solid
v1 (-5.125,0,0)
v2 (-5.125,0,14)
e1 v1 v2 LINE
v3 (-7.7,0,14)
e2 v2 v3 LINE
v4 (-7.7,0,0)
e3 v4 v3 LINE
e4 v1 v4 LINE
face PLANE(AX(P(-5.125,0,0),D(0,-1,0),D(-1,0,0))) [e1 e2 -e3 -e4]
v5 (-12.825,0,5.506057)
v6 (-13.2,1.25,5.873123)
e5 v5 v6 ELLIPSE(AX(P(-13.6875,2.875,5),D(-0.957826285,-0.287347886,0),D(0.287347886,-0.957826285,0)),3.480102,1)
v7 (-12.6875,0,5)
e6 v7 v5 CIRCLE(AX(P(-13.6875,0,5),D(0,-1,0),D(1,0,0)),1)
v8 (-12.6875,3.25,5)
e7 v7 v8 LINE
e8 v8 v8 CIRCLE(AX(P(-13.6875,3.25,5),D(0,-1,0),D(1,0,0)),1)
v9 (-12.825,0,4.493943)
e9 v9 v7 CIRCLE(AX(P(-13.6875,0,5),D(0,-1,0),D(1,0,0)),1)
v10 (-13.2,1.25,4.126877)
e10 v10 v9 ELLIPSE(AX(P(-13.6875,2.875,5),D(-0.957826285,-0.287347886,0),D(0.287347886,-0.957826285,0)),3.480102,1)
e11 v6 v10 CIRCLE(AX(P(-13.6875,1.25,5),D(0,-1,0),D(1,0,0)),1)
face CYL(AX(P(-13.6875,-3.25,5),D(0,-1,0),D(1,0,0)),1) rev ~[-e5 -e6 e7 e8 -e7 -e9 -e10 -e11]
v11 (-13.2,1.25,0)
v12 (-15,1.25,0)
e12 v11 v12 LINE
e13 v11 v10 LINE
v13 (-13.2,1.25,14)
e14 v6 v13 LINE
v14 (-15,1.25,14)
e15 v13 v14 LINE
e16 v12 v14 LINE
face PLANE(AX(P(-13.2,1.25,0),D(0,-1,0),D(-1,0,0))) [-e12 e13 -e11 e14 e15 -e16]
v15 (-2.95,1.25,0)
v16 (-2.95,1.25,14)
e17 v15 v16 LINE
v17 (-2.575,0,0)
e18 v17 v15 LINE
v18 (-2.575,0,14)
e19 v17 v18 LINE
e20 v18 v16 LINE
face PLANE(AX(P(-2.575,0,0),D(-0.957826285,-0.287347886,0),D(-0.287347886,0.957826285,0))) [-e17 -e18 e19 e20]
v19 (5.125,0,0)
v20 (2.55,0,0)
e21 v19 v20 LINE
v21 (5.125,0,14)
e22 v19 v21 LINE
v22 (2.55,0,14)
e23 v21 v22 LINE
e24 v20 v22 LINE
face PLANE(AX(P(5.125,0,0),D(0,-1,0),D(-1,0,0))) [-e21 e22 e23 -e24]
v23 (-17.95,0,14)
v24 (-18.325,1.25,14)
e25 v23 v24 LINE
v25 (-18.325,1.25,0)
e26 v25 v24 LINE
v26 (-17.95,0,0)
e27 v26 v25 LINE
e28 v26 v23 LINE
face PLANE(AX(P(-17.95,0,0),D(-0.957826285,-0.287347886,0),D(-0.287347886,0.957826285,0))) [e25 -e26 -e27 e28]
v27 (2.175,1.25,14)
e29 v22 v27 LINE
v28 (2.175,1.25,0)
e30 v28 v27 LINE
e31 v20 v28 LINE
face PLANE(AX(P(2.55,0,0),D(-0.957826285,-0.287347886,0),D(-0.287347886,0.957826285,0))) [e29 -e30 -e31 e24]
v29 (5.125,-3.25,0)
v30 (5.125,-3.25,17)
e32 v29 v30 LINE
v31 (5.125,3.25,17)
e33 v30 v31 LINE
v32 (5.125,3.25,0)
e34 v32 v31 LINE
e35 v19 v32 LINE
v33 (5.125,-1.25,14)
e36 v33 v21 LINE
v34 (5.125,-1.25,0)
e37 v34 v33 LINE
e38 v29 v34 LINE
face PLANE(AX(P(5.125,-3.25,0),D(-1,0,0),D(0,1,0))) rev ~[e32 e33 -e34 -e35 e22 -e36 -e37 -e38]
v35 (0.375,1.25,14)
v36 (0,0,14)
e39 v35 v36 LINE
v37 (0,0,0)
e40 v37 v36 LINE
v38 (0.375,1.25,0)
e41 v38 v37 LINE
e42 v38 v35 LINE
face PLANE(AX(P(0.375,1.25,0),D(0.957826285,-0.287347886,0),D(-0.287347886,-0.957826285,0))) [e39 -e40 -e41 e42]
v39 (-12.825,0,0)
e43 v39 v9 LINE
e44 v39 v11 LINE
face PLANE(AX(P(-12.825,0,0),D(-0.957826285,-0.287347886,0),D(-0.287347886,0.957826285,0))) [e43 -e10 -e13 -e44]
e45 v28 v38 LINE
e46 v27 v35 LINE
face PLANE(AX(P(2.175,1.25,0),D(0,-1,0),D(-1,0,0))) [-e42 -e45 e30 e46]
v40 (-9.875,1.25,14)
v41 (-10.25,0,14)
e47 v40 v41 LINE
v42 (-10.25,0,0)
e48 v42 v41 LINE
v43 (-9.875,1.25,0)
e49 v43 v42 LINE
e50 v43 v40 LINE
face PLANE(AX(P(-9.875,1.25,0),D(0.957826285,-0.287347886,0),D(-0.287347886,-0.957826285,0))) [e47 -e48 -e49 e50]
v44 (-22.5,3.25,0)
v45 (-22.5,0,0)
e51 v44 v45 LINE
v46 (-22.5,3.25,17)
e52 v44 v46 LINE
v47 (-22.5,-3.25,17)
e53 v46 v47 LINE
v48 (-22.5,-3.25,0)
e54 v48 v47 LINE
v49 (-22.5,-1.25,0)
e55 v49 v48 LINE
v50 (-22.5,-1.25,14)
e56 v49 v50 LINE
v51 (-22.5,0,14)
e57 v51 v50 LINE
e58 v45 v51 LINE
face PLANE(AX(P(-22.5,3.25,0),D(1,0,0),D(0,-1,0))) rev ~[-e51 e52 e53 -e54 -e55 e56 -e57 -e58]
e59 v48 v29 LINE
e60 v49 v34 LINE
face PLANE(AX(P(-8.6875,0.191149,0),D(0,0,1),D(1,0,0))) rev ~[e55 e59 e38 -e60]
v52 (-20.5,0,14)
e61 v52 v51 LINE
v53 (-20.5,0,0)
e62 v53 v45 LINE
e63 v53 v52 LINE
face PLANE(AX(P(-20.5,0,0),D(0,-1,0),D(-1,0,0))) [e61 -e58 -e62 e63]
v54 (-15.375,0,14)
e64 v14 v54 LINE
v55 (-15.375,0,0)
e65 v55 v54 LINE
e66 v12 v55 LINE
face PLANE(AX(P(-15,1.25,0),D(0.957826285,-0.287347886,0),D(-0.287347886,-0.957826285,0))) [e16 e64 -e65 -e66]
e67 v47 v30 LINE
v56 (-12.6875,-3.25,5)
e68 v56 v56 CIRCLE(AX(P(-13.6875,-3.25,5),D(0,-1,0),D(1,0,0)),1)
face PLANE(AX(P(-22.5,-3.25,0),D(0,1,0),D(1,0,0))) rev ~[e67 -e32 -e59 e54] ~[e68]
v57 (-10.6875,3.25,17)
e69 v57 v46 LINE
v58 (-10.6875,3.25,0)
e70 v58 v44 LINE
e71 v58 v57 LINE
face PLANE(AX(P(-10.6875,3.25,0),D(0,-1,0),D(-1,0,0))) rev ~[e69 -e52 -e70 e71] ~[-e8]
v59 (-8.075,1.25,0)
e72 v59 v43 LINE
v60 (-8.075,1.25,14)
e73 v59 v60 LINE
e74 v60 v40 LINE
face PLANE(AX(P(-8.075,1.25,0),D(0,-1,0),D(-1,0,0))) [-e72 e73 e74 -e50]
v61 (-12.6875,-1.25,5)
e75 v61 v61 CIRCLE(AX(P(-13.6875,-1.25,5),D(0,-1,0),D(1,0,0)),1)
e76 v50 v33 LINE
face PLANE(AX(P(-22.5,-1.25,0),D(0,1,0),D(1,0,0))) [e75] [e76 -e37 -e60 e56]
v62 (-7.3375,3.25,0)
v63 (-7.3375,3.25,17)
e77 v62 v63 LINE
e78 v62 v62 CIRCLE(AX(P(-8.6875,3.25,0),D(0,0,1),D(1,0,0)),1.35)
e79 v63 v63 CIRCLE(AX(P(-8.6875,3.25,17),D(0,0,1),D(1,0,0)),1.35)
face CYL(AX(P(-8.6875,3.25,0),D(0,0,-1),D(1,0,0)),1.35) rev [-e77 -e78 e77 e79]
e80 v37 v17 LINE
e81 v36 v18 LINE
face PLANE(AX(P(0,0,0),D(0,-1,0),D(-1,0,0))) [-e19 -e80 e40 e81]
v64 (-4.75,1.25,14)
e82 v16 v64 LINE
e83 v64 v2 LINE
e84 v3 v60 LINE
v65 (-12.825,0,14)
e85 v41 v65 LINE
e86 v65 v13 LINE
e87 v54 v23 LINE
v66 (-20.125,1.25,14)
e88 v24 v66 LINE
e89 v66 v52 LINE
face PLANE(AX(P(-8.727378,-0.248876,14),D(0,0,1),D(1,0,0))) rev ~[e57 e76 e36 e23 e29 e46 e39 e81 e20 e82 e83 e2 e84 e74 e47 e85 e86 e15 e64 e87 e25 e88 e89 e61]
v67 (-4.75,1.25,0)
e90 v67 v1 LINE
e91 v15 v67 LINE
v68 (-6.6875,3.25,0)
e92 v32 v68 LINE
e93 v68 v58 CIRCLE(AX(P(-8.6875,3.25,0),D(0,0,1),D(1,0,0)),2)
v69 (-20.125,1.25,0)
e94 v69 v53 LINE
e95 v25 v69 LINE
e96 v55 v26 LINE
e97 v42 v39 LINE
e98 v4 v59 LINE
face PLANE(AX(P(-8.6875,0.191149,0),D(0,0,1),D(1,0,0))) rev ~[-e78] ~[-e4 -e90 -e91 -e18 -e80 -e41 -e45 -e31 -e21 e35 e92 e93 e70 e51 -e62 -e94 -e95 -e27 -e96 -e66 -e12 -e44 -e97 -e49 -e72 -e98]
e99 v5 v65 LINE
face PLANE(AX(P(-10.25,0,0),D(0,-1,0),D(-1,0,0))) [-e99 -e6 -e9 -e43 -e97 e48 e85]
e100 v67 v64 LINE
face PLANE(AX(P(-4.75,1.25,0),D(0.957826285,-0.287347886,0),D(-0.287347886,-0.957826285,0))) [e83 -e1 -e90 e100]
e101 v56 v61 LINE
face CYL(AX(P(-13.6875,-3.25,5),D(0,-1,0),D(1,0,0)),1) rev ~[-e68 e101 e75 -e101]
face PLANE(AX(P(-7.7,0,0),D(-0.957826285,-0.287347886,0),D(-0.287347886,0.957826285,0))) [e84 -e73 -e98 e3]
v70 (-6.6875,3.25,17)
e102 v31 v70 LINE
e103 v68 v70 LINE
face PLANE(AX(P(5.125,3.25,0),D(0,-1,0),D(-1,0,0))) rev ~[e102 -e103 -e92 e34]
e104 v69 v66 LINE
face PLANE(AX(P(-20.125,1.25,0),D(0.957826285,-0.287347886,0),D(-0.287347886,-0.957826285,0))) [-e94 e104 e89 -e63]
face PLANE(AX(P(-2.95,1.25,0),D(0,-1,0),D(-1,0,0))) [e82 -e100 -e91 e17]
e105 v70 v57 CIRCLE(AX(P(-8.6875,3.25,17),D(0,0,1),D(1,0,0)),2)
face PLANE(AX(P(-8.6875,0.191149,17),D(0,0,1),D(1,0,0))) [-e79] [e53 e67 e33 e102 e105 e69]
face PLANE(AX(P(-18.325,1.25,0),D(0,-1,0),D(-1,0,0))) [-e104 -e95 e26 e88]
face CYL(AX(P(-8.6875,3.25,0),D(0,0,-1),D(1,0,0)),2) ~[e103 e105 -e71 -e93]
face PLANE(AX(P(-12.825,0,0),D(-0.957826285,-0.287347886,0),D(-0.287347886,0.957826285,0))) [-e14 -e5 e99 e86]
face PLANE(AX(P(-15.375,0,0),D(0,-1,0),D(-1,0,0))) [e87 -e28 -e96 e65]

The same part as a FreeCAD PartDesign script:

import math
import FreeCAD as App
import Part
import Sketcher
Q = App.Units.Quantity

doc = App.newDocument("Part")
body = doc.addObject("PartDesign::Body", "Body")

# Sketch on XY plane
sketch1 = doc.addObject("Sketcher::SketchObject", "Sketch")
body.addObject(sketch1)
sketch1.AttachmentSupport = (doc.XY_Plane, [""])
sketch1.MapMode = "FlatFace"
sketch1.addGeometry(Part.LineSegment(App.Vector(-20.125, 1.25, 0), App.Vector(-20.5, 0, 0)), False)
sketch1.addGeometry(Part.LineSegment(App.Vector(-20.5, 0, 0), App.Vector(-22.5, 0, 0)), False)
sketch1.addGeometry(Part.LineSegment(App.Vector(-22.5, 0, 0), App.Vector(-22.5, -1.25, 0)), False)
sketch1.addGeometry(Part.LineSegment(App.Vector(-22.5, -1.25, 0), App.Vector(5.125, -1.25, 0)), False)
sketch1.addGeometry(Part.LineSegment(App.Vector(5.125, -1.25, 0), App.Vector(5.125, 0, 0)), False)
sketch1.addGeometry(Part.LineSegment(App.Vector(5.125, 0, 0), App.Vector(2.55, 0, 0)), False)
sketch1.addGeometry(Part.LineSegment(App.Vector(2.55, 0, 0), App.Vector(2.175, 1.25, 0)), False)
sketch1.addGeometry(Part.LineSegment(App.Vector(2.175, 1.25, 0), App.Vector(0.375, 1.25, 0)), False)
sketch1.addGeometry(Part.LineSegment(App.Vector(0.375, 1.25, 0), App.Vector(0, 0, 0)), False)
sketch1.addGeometry(Part.LineSegment(App.Vector(0, 0, 0), App.Vector(-2.575, 0, 0)), False)
sketch1.addGeometry(Part.LineSegment(App.Vector(-2.575, 0, 0), App.Vector(-2.95, 1.25, 0)), False)
sketch1.addGeometry(Part.LineSegment(App.Vector(-2.95, 1.25, 0), App.Vector(-4.75, 1.25, 0)), False)
sketch1.addGeometry(Part.LineSegment(App.Vector(-4.75, 1.25, 0), App.Vector(-5.125, 0, 0)), False)
sketch1.addGeometry(Part.LineSegment(App.Vector(-5.125, 0, 0), App.Vector(-7.7, 0, 0)), False)
sketch1.addGeometry(Part.LineSegment(App.Vector(-7.7, 0, 0), App.Vector(-8.075, 1.25, 0)), False)
sketch1.addGeometry(Part.LineSegment(App.Vector(-8.075, 1.25, 0), App.Vector(-9.875, 1.25, 0)), False)
sketch1.addGeometry(Part.LineSegment(App.Vector(-9.875, 1.25, 0), App.Vector(-10.25, 0, 0)), False)
sketch1.addGeometry(Part.LineSegment(App.Vector(-10.25, 0, 0), App.Vector(-12.825, 0, 0)), False)
sketch1.addGeometry(Part.LineSegment(App.Vector(-12.825, 0, 0), App.Vector(-13.2, 1.25, 0)), False)
sketch1.addGeometry(Part.LineSegment(App.Vector(-13.2, 1.25, 0), App.Vector(-15, 1.25, 0)), False)
sketch1.addGeometry(Part.LineSegment(App.Vector(-15, 1.25, 0), App.Vector(-15.375, 0, 0)), False)
sketch1.addGeometry(Part.LineSegment(App.Vector(-15.375, 0, 0), App.Vector(-17.95, 0, 0)), False)
sketch1.addGeometry(Part.LineSegment(App.Vector(-17.95, 0, 0), App.Vector(-18.325, 1.25, 0)), False)
sketch1.addGeometry(Part.LineSegment(App.Vector(-18.325, 1.25, 0), App.Vector(-20.125, 1.25, 0)), False)
sketch1.addConstraint(Sketcher.Constraint("Coincident", 0, 2, 1, 1))
sketch1.addConstraint(Sketcher.Constraint("Coincident", 1, 2, 2, 1))
sketch1.addConstraint(Sketcher.Constraint("Coincident", 2, 2, 3, 1))
sketch1.addConstraint(Sketcher.Constraint("Coincident", 3, 2, 4, 1))
sketch1.addConstraint(Sketcher.Constraint("Coincident", 4, 2, 5, 1))
sketch1.addConstraint(Sketcher.Constraint("Coincident", 5, 2, 6, 1))
sketch1.addConstraint(Sketcher.Constraint("Coincident", 6, 2, 7, 1))
sketch1.addConstraint(Sketcher.Constraint("Coincident", 7, 2, 8, 1))
sketch1.addConstraint(Sketcher.Constraint("Coincident", 8, 2, 9, 1))
sketch1.addConstraint(Sketcher.Constraint("Coincident", 9, 2, 10, 1))
sketch1.addConstraint(Sketcher.Constraint("Coincident", 10, 2, 11, 1))
sketch1.addConstraint(Sketcher.Constraint("Coincident", 11, 2, 12, 1))
sketch1.addConstraint(Sketcher.Constraint("Coincident", 12, 2, 13, 1))
sketch1.addConstraint(Sketcher.Constraint("Coincident", 13, 2, 14, 1))
sketch1.addConstraint(Sketcher.Constraint("Coincident", 14, 2, 15, 1))
sketch1.addConstraint(Sketcher.Constraint("Coincident", 15, 2, 16, 1))
sketch1.addConstraint(Sketcher.Constraint("Coincident", 16, 2, 17, 1))
sketch1.addConstraint(Sketcher.Constraint("Coincident", 17, 2, 18, 1))
sketch1.addConstraint(Sketcher.Constraint("Coincident", 18, 2, 19, 1))
sketch1.addConstraint(Sketcher.Constraint("Coincident", 19, 2, 20, 1))
sketch1.addConstraint(Sketcher.Constraint("Coincident", 20, 2, 21, 1))
sketch1.addConstraint(Sketcher.Constraint("Coincident", 21, 2, 22, 1))
sketch1.addConstraint(Sketcher.Constraint("Coincident", 22, 2, 23, 1))
sketch1.addConstraint(Sketcher.Constraint("Coincident", 23, 2, 0, 1))
sketch1.addConstraint(Sketcher.Constraint("Horizontal", 1))
sketch1.addConstraint(Sketcher.Constraint("Vertical", 2))
sketch1.addConstraint(Sketcher.Constraint("Horizontal", 3))
sketch1.addConstraint(Sketcher.Constraint("Vertical", 4))
sketch1.addConstraint(Sketcher.Constraint("Horizontal", 5))
sketch1.addConstraint(Sketcher.Constraint("Horizontal", 7))
sketch1.addConstraint(Sketcher.Constraint("Horizontal", 9))
sketch1.addConstraint(Sketcher.Constraint("Horizontal", 11))
sketch1.addConstraint(Sketcher.Constraint("Horizontal", 13))
sketch1.addConstraint(Sketcher.Constraint("Horizontal", 15))
sketch1.addConstraint(Sketcher.Constraint("Horizontal", 17))
sketch1.addConstraint(Sketcher.Constraint("Horizontal", 19))
sketch1.addConstraint(Sketcher.Constraint("Horizontal", 21))
sketch1.addConstraint(Sketcher.Constraint("Horizontal", 23))
sketch1.addConstraint(Sketcher.Constraint("Coincident", 8, 2, -1, 1))
sketch1.addConstraint(Sketcher.Constraint("Symmetric", 4, 2, 12, 2, -1, 1))
sketch1.addConstraint(Sketcher.Constraint("PointOnObject", 0, 2, -1))
sketch1.addConstraint(Sketcher.Constraint("PointOnObject", 4, 2, -1))
sketch1.addConstraint(Sketcher.Constraint("PointOnObject", 16, 2, -1))
sketch1.addConstraint(Sketcher.Constraint("PointOnObject", 20, 2, -1))
sketch1.addConstraint(Sketcher.Constraint("Parallel", 0, 8))
sketch1.addConstraint(Sketcher.Constraint("Parallel", 6, 10))
sketch1.addConstraint(Sketcher.Constraint("Parallel", 8, 12))
sketch1.addConstraint(Sketcher.Constraint("Parallel", 10, 14))
sketch1.addConstraint(Sketcher.Constraint("Parallel", 12, 16))
sketch1.addConstraint(Sketcher.Constraint("Parallel", 14, 18))
sketch1.addConstraint(Sketcher.Constraint("Parallel", 16, 20))
sketch1.addConstraint(Sketcher.Constraint("Parallel", 18, 22))
sketch1.addConstraint(Sketcher.Constraint("Horizontal", 7, 2, 10, 2))
sketch1.addConstraint(Sketcher.Constraint("Horizontal", 11, 2, 14, 2))
sketch1.addConstraint(Sketcher.Constraint("Horizontal", 15, 2, 18, 2))
sketch1.addConstraint(Sketcher.Constraint("Horizontal", 19, 2, 22, 2))
sketch1.addConstraint(Sketcher.Constraint("Equal", 5, 9))
sketch1.addConstraint(Sketcher.Constraint("Equal", 9, 13))
sketch1.addConstraint(Sketcher.Constraint("Equal", 11, 15))
sketch1.addConstraint(Sketcher.Constraint("Equal", 13, 17))
sketch1.addConstraint(Sketcher.Constraint("Equal", 15, 19))
sketch1.addConstraint(Sketcher.Constraint("Equal", 17, 21))
sketch1.addConstraint(Sketcher.Constraint("Equal", 19, 23))
sketch1.addConstraint(Sketcher.Constraint("Equal", 0, 6))
sketch1.addConstraint(Sketcher.Constraint("DistanceX", 1, 2, 1, 1, Q("2 mm")))
sketch1.addConstraint(Sketcher.Constraint("DistanceX", 7, 2, 7, 1, Q("1.8 mm")))
sketch1.addConstraint(Sketcher.Constraint("DistanceX", 19, 2, -1, 1, Q("15 mm")))
sketch1.addConstraint(Sketcher.Constraint("DistanceY", 2, 2, 2, 1, Q("1.25 mm")))
sketch1.addConstraint(Sketcher.Constraint("DistanceX", 0, 2, -1, 1, Q("20.5 mm")))
sketch1.addConstraint(Sketcher.Constraint("DistanceY", 3, 2, 6, 2, Q("2.5 mm")))
pad1 = doc.addObject("PartDesign::Pad", "Pad")
body.addObject(pad1)
pad1.Profile = sketch1
pad1.Length = 14
body2 = doc.addObject("PartDesign::Body", "Body001")

# Sketch on XY plane
sketch2 = doc.addObject("Sketcher::SketchObject", "Sketch001")
body2.addObject(sketch2)
sketch2.AttachmentSupport = (doc.getObject("XY_Plane001"), [""])
sketch2.MapMode = "FlatFace"
sketch2.addGeometry(Part.LineSegment(App.Vector(5.125, -3.25, 0), App.Vector(5.125, 3.25, 0)), False)
sketch2.addGeometry(Part.LineSegment(App.Vector(5.125, 3.25, 0), App.Vector(-6.6875, 3.25, 0)), False)
sketch2.addGeometry(Part.ArcOfCircle(Part.Circle(App.Vector(-8.6875, 3.25, 0), App.Vector(0, 0, 1), 2), math.radians(0), math.radians(180)), False)
sketch2.addGeometry(Part.LineSegment(App.Vector(-10.6875, 3.25, 0), App.Vector(-22.5, 3.25, 0)), False)
sketch2.addGeometry(Part.LineSegment(App.Vector(-22.5, 3.25, 0), App.Vector(-22.5, -3.25, 0)), False)
sketch2.addGeometry(Part.LineSegment(App.Vector(-22.5, -3.25, 0), App.Vector(5.125, -3.25, 0)), False)
sketch2.addGeometry(Part.Circle(App.Vector(-8.6875, 3.25, 0), App.Vector(0, 0, 1), 1.35), False)
sketch2.addConstraint(Sketcher.Constraint("Coincident", 0, 2, 1, 1))
sketch2.addConstraint(Sketcher.Constraint("Coincident", 1, 2, 2, 1))
sketch2.addConstraint(Sketcher.Constraint("Coincident", 2, 2, 3, 1))
sketch2.addConstraint(Sketcher.Constraint("Coincident", 3, 2, 4, 1))
sketch2.addConstraint(Sketcher.Constraint("Coincident", 4, 2, 5, 1))
sketch2.addConstraint(Sketcher.Constraint("Coincident", 5, 2, 0, 1))
sketch2.addConstraint(Sketcher.Constraint("Vertical", 0))
sketch2.addConstraint(Sketcher.Constraint("Horizontal", 1))
sketch2.addConstraint(Sketcher.Constraint("Horizontal", 3))
sketch2.addConstraint(Sketcher.Constraint("Vertical", 4))
sketch2.addConstraint(Sketcher.Constraint("Horizontal", 5))
sketch2.addConstraint(Sketcher.Constraint("Coincident", 6, 3, 2, 3))
sketch2.addConstraint(Sketcher.Constraint("Horizontal", 6, 3, 0, 2))
sketch2.addConstraint(Sketcher.Constraint("Horizontal", 1, 2, 2, 2))
sketch2.addConstraint(Sketcher.Constraint("Equal", 1, 3))
sketch2.addConstraint(Sketcher.Constraint("Radius", 2, Q("2 mm")))
sketch2.addConstraint(Sketcher.Constraint("Diameter", 6, Q("2.7 mm")))
sketch2.addConstraint(Sketcher.Constraint("DistanceY", 0, 1, 0, 2, Q("6.5 mm")))
sketch2.addConstraint(Sketcher.Constraint("DistanceX", 3, 2, -1, 1, Q("22.5 mm")))
sketch2.addConstraint(Sketcher.Constraint("DistanceX", 5, 1, 5, 2, Q("27.625 mm")))
sketch2.addConstraint(Sketcher.Constraint("DistanceY", -1, 1, 2, 3, Q("3.25 mm")))
pad2 = doc.addObject("PartDesign::Pad", "Pad001")
body2.addObject(pad2)
pad2.Profile = sketch2
pad2.Length = 17
doc.recompute()

boolean = doc.addObject("PartDesign::Boolean", "Boolean")
body2.addObject(boolean)
boolean.Type = "Cut"
boolean.addObjects([body])

# Sketch on XZ plane
sketch3 = doc.addObject("Sketcher::SketchObject", "Sketch002")
body2.addObject(sketch3)
sketch3.AttachmentSupport = (doc.getObject("XZ_Plane001"), [""])
sketch3.MapMode = "FlatFace"
sketch3.AttachmentOffset = App.Placement(App.Vector(0, 0, 3.25), App.Rotation())
sketch3.addGeometry(Part.Circle(App.Vector(-13.6875, 5, 0), App.Vector(0, 0, 1), 1), False)
sketch3.addConstraint(Sketcher.Constraint("Diameter", 0, Q("2 mm")))
sketch3.addConstraint(Sketcher.Constraint("DistanceY", -1, 1, 0, 3, Q("5 mm")))
sketch3.addConstraint(Sketcher.Constraint("DistanceX", 0, 3, -1, 1, Q("13.6875 mm")))
pocket1 = doc.addObject("PartDesign::Pocket", "Pocket")
body2.addObject(pocket1)
pocket1.Profile = sketch3
pocket1.Length = 25

doc.recompute()
